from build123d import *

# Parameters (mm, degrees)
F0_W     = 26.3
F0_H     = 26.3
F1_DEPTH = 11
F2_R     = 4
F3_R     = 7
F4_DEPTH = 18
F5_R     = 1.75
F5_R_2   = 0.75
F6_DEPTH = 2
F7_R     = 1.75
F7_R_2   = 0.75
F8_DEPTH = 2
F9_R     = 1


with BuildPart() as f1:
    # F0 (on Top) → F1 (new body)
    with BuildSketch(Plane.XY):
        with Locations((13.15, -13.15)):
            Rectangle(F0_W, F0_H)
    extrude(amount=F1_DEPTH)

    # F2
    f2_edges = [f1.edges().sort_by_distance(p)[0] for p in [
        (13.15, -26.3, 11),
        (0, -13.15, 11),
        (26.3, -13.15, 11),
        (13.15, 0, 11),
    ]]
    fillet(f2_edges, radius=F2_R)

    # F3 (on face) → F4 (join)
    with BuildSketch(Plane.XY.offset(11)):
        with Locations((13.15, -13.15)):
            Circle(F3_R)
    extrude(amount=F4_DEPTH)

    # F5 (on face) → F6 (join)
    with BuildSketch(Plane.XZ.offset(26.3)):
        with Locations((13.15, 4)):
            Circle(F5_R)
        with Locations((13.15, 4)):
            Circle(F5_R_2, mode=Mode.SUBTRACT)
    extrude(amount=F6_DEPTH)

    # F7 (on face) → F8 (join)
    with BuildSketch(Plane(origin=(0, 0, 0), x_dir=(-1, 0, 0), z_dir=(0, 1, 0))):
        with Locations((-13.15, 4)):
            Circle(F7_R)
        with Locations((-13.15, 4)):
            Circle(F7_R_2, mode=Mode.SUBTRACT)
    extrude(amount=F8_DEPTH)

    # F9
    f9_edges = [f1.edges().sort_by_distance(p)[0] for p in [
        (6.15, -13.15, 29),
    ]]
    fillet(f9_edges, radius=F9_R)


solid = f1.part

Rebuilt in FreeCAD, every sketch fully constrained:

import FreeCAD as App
import Part
import Sketcher
from FreeCAD import Vector


def edges_at(feature, points):
    """Names of the edges that pass closest to the given points."""
    edges = feature.Shape.Edges
    near = lambda p: min(range(len(edges)), key=lambda i: edges[i].distToShape(Part.Vertex(*p))[0])
    return sorted({f"Edge{near(p) + 1}" for p in points})


def add_polygon(sketch, points):
    """Adds a closed chain of lines whose ends are joined by coincident constraints."""
    first, n = sketch.GeometryCount, len(points)
    for a, b in zip(points, points[1:] + points[:1]):
        sketch.addGeometry(Part.LineSegment(App.Vector(*a, 0), App.Vector(*b, 0)), False)
    for i in range(n):
        sketch.addConstraint(Sketcher.Constraint("Coincident", first + i, 2, first + (i + 1) % n, 1))

doc = App.newDocument("Part")
body = doc.addObject("PartDesign::Body", "Body")

# Sketch on XY plane
sketch1 = body.newObject("Sketcher::SketchObject", "Sketch")
sketch1.AttachmentSupport = (doc.getObject("XY_Plane"), [""])
sketch1.MapMode = "FlatFace"
add_polygon(sketch1, [(0, 0), (0, -26), (26, -26), (26, 0)])  # lines 0-3
sketch1.addConstraint([
    Sketcher.Constraint("Vertical", 0),
    Sketcher.Constraint("Horizontal", 1),
    Sketcher.Constraint("Vertical", 2),
    Sketcher.Constraint("Horizontal", 3),
    Sketcher.Constraint("Coincident", 3, 2, -1, 1),
    Sketcher.Constraint("Equal", 3, 0),
    Sketcher.Constraint("DistanceX", 1, 1, 1, 2, 26.3),
])
pad1 = body.newObject("PartDesign::Pad", "Pad")
pad1.Profile = sketch1
pad1.Length = 11
doc.recompute()

fillet = body.newObject("PartDesign::Fillet", "Fillet")
fillet.Base = (pad1, edges_at(pad1, [
    (13.15, -26.3, 11),
    (0, -13.15, 11),
    (26.3, -13.15, 11),
    (13.15, 0, 11),
]))
fillet.Radius = 4

# Sketch on XY plane
sketch2 = body.newObject("Sketcher::SketchObject", "Sketch001")
sketch2.AttachmentSupport = (doc.getObject("XY_Plane"), [""])
sketch2.MapMode = "FlatFace"
sketch2.AttachmentOffset = App.Placement(Vector(0, 0, 11), App.Rotation())
sketch2.addGeometry(Part.Circle(Vector(13, -13, 0), Vector(0, 0, 1), 7), False)
sketch2.addConstraint([
    Sketcher.Constraint("Diameter", 0, 14.0),
    Sketcher.Constraint("DistanceX", -1, 1, 0, 3, 13.15),
    Sketcher.Constraint("DistanceY", 0, 3, -1, 1, 13.15),
])
pad2 = body.newObject("PartDesign::Pad", "Pad001")
pad2.Profile = sketch2
pad2.Length = 18

# Sketch on XZ plane
sketch3 = body.newObject("Sketcher::SketchObject", "Sketch002")
sketch3.AttachmentSupport = (doc.getObject("XZ_Plane"), [""])
sketch3.MapMode = "FlatFace"
sketch3.AttachmentOffset = App.Placement(Vector(0, 0, 26.3), App.Rotation())
sketch3.addGeometry([
    Part.Circle(Vector(13.2, 4, 0), Vector(0, 0, 1), 1.8),
    Part.Circle(Vector(13.2, 4, 0), Vector(0, 0, 1), 0.8),
], False)
sketch3.addConstraint([
    Sketcher.Constraint("Coincident", 1, 3, 0, 3),
    Sketcher.Constraint("Diameter", 0, 3.5),
    Sketcher.Constraint("Diameter", 1, 1.5),
    Sketcher.Constraint("DistanceY", -1, 1, 0, 3, 4.0),
    Sketcher.Constraint("DistanceX", -1, 1, 0, 3, 13.15),
])
pad3 = body.newObject("PartDesign::Pad", "Pad002")
pad3.Profile = sketch3
pad3.Length = 2

# Sketch on XZ plane
sketch4 = body.newObject("Sketcher::SketchObject", "Sketch003")
sketch4.AttachmentSupport = (doc.getObject("XZ_Plane"), [""])
sketch4.MapMode = "FlatFace"
sketch4.addGeometry([
    Part.Circle(Vector(13.2, 4, 0), Vector(0, 0, 1), 1.8),
    Part.Circle(Vector(13.2, 4, 0), Vector(0, 0, 1), 0.8),
], False)
sketch4.addConstraint([
    Sketcher.Constraint("Coincident", 1, 3, 0, 3),
    Sketcher.Constraint("Diameter", 0, 3.5),
    Sketcher.Constraint("Diameter", 1, 1.5),
    Sketcher.Constraint("DistanceY", -1, 1, 0, 3, 4.0),
    Sketcher.Constraint("DistanceX", -1, 1, 0, 3, 13.15),
])
pad4 = body.newObject("PartDesign::Pad", "Pad003")
pad4.Profile = sketch4
pad4.Length = 2
pad4.Reversed = True
doc.recompute()

fillet2 = body.newObject("PartDesign::Fillet", "Fillet001")
fillet2.Base = (pad4, edges_at(pad4, [(6.15, -13.15, 29)]))
fillet2.Radius = 1

doc.recompute()
